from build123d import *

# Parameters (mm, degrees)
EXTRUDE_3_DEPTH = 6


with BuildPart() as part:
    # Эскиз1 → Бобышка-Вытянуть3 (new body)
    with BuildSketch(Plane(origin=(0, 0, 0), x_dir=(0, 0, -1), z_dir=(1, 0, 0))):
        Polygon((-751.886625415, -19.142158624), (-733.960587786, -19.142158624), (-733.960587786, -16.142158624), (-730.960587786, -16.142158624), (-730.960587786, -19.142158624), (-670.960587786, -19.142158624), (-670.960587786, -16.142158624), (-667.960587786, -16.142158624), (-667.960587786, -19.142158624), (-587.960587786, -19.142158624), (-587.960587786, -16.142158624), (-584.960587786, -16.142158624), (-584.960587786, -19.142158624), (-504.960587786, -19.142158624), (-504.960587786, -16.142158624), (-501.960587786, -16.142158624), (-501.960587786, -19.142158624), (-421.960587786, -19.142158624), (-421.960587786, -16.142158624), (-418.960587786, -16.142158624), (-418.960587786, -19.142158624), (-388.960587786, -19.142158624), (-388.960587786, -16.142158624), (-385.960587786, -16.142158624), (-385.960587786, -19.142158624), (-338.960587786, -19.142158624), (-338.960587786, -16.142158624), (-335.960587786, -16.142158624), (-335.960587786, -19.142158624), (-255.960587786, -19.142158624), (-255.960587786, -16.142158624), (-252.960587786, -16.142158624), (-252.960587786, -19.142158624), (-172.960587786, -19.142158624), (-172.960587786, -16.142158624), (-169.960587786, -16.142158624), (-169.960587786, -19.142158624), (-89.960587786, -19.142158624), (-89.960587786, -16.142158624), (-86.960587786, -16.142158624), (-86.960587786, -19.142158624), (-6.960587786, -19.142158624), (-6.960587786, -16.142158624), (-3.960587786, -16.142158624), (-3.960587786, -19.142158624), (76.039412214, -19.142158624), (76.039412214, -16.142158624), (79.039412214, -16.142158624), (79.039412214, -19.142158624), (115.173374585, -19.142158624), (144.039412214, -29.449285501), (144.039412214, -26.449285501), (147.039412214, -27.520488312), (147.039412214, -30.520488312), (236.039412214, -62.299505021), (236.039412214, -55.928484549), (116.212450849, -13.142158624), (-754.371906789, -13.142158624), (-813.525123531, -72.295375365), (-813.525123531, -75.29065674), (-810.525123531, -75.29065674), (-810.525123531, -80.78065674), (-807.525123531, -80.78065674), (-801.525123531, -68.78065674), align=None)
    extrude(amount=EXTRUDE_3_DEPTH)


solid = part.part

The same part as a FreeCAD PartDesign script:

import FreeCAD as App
import Part
import Sketcher

V = App.Vector
Q = App.Units.Quantity

doc = App.newDocument("Part")
body = doc.addObject("PartDesign::Body", "Body")

sketch1 = body.newObject("Sketcher::SketchObject", "Sketch")
sketch1.AttachmentSupport = (doc.getObject("YZ_Plane"), [""])
sketch1.MapMode = "FlatFace"
sketch1.addGeometry([
    Part.LineSegment(V(-19.142159, 751.886625, 0), V(-19.142159, 733.960588, 0)),
    Part.LineSegment(V(-19.142159, 733.960588, 0), V(-16.142159, 733.960588, 0)),
    Part.LineSegment(V(-16.142159, 733.960588, 0), V(-16.142159, 730.960588, 0)),
    Part.LineSegment(V(-16.142159, 730.960588, 0), V(-19.142159, 730.960588, 0)),
    Part.LineSegment(V(-19.142159, 730.960588, 0), V(-19.142159, 670.960588, 0)),
    Part.LineSegment(V(-19.142159, 670.960588, 0), V(-16.142159, 670.960588, 0)),
    Part.LineSegment(V(-16.142159, 670.960588, 0), V(-16.142159, 667.960588, 0)),
    Part.LineSegment(V(-16.142159, 667.960588, 0), V(-19.142159, 667.960588, 0)),
    Part.LineSegment(V(-19.142159, 667.960588, 0), V(-19.142159, 587.960588, 0)),
    Part.LineSegment(V(-19.142159, 587.960588, 0), V(-16.142159, 587.960588, 0)),
    Part.LineSegment(V(-16.142159, 587.960588, 0), V(-16.142159, 584.960588, 0)),
    Part.LineSegment(V(-16.142159, 584.960588, 0), V(-19.142159, 584.960588, 0)),
    Part.LineSegment(V(-19.142159, 584.960588, 0), V(-19.142159, 504.960588, 0)),
    Part.LineSegment(V(-19.142159, 504.960588, 0), V(-16.142159, 504.960588, 0)),
    Part.LineSegment(V(-16.142159, 504.960588, 0), V(-16.142159, 501.960588, 0)),
    Part.LineSegment(V(-16.142159, 501.960588, 0), V(-19.142159, 501.960588, 0)),
    Part.LineSegment(V(-19.142159, 501.960588, 0), V(-19.142159, 421.960588, 0)),
    Part.LineSegment(V(-19.142159, 421.960588, 0), V(-16.142159, 421.960588, 0)),
    Part.LineSegment(V(-16.142159, 421.960588, 0), V(-16.142159, 418.960588, 0)),
    Part.LineSegment(V(-16.142159, 418.960588, 0), V(-19.142159, 418.960588, 0)),
    Part.LineSegment(V(-19.142159, 418.960588, 0), V(-19.142159, 388.960588, 0)),
    Part.LineSegment(V(-19.142159, 388.960588, 0), V(-16.142159, 388.960588, 0)),
    Part.LineSegment(V(-16.142159, 388.960588, 0), V(-16.142159, 385.960588, 0)),
    Part.LineSegment(V(-16.142159, 385.960588, 0), V(-19.142159, 385.960588, 0)),
    Part.LineSegment(V(-19.142159, 385.960588, 0), V(-19.142159, 338.960588, 0)),
    Part.LineSegment(V(-19.142159, 338.960588, 0), V(-16.142159, 338.960588, 0)),
    Part.LineSegment(V(-16.142159, 338.960588, 0), V(-16.142159, 335.960588, 0)),
    Part.LineSegment(V(-16.142159, 335.960588, 0), V(-19.142159, 335.960588, 0)),
    Part.LineSegment(V(-19.142159, 335.960588, 0), V(-19.142159, 255.960588, 0)),
    Part.LineSegment(V(-19.142159, 255.960588, 0), V(-16.142159, 255.960588, 0)),
    Part.LineSegment(V(-16.142159, 255.960588, 0), V(-16.142159, 252.960588, 0)),
    Part.LineSegment(V(-16.142159, 252.960588, 0), V(-19.142159, 252.960588, 0)),
    Part.LineSegment(V(-19.142159, 252.960588, 0), V(-19.142159, 172.960588, 0)),
    Part.LineSegment(V(-19.142159, 172.960588, 0), V(-16.142159, 172.960588, 0)),
    Part.LineSegment(V(-16.142159, 172.960588, 0), V(-16.142159, 169.960588, 0)),
    Part.LineSegment(V(-16.142159, 169.960588, 0), V(-19.142159, 169.960588, 0)),
    Part.LineSegment(V(-19.142159, 169.960588, 0), V(-19.142159, 89.960588, 0)),
    Part.LineSegment(V(-19.142159, 89.960588, 0), V(-16.142159, 89.960588, 0)),
    Part.LineSegment(V(-16.142159, 89.960588, 0), V(-16.142159, 86.960588, 0)),
    Part.LineSegment(V(-16.142159, 86.960588, 0), V(-19.142159, 86.960588, 0)),
    Part.LineSegment(V(-19.142159, 86.960588, 0), V(-19.142159, 6.960588, 0)),
    Part.LineSegment(V(-19.142159, 6.960588, 0), V(-16.142159, 6.960588, 0)),
    Part.LineSegment(V(-16.142159, 6.960588, 0), V(-16.142159, 3.960588, 0)),
    Part.LineSegment(V(-16.142159, 3.960588, 0), V(-19.142159, 3.960588, 0)),
    Part.LineSegment(V(-19.142159, 3.960588, 0), V(-19.142159, -76.039412, 0)),
    Part.LineSegment(V(-19.142159, -76.039412, 0), V(-16.142159, -76.039412, 0)),
    Part.LineSegment(V(-16.142159, -76.039412, 0), V(-16.142159, -79.039412, 0)),
    Part.LineSegment(V(-16.142159, -79.039412, 0), V(-19.142159, -79.039412, 0)),
    Part.LineSegment(V(-19.142159, -79.039412, 0), V(-19.142159, -115.173375, 0)),
    Part.LineSegment(V(-19.142159, -115.173375, 0), V(-29.449286, -144.039412, 0)),
    Part.LineSegment(V(-29.449286, -144.039412, 0), V(-26.449286, -144.039412, 0)),
    Part.LineSegment(V(-26.449286, -144.039412, 0), V(-27.520488, -147.039412, 0)),
    Part.LineSegment(V(-27.520488, -147.039412, 0), V(-30.520488, -147.039412, 0)),
    Part.LineSegment(V(-30.520488, -147.039412, 0), V(-62.299505, -236.039412, 0)),
    Part.LineSegment(V(-62.299505, -236.039412, 0), V(-55.928485, -236.039412, 0)),
    Part.LineSegment(V(-55.928485, -236.039412, 0), V(-13.142159, -116.212451, 0)),
    Part.LineSegment(V(-13.142159, -116.212451, 0), V(-13.142159, 754.371907, 0)),
    Part.LineSegment(V(-13.142159, 754.371907, 0), V(-72.295375, 813.525124, 0)),
    Part.LineSegment(V(-72.295375, 813.525124, 0), V(-75.290657, 813.525124, 0)),
    Part.LineSegment(V(-75.290657, 813.525124, 0), V(-75.290657, 810.525124, 0)),
    Part.LineSegment(V(-75.290657, 810.525124, 0), V(-80.780657, 810.525124, 0)),
    Part.LineSegment(V(-80.780657, 810.525124, 0), V(-80.780657, 807.525124, 0)),
    Part.LineSegment(V(-80.780657, 807.525124, 0), V(-68.780657, 801.525124, 0)),
    Part.LineSegment(V(-68.780657, 801.525124, 0), V(-19.142159, 751.886625, 0)),
], False)
sketch1.addConstraint([
    Sketcher.Constraint("Coincident", 0, 2, 1, 1),
    Sketcher.Constraint("Coincident", 1, 2, 2, 1),
    Sketcher.Constraint("Coincident", 2, 2, 3, 1),
    Sketcher.Constraint("Coincident", 3, 2, 4, 1),
    Sketcher.Constraint("Coincident", 4, 2, 5, 1),
    Sketcher.Constraint("Coincident", 5, 2, 6, 1),
    Sketcher.Constraint("Coincident", 6, 2, 7, 1),
    Sketcher.Constraint("Coincident", 7, 2, 8, 1),
    Sketcher.Constraint("Coincident", 8, 2, 9, 1),
    Sketcher.Constraint("Coincident", 9, 2, 10, 1),
    Sketcher.Constraint("Coincident", 10, 2, 11, 1),
    Sketcher.Constraint("Coincident", 11, 2, 12, 1),
    Sketcher.Constraint("Coincident", 12, 2, 13, 1),
    Sketcher.Constraint("Coincident", 13, 2, 14, 1),
    Sketcher.Constraint("Coincident", 14, 2, 15, 1),
    Sketcher.Constraint("Coincident", 15, 2, 16, 1),
    Sketcher.Constraint("Coincident", 16, 2, 17, 1),
    Sketcher.Constraint("Coincident", 17, 2, 18, 1),
    Sketcher.Constraint("Coincident", 18, 2, 19, 1),
    Sketcher.Constraint("Coincident", 19, 2, 20, 1),
    Sketcher.Constraint("Coincident", 20, 2, 21, 1),
    Sketcher.Constraint("Coincident", 21, 2, 22, 1),
    Sketcher.Constraint("Coincident", 22, 2, 23, 1),
    Sketcher.Constraint("Coincident", 23, 2, 24, 1),
    Sketcher.Constraint("Coincident", 24, 2, 25, 1),
    Sketcher.Constraint("Coincident", 25, 2, 26, 1),
    Sketcher.Constraint("Coincident", 26, 2, 27, 1),
    Sketcher.Constraint("Coincident", 27, 2, 28, 1),
    Sketcher.Constraint("Coincident", 28, 2, 29, 1),
    Sketcher.Constraint("Coincident", 29, 2, 30, 1),
    Sketcher.Constraint("Coincident", 30, 2, 31, 1),
    Sketcher.Constraint("Coincident", 31, 2, 32, 1),
    Sketcher.Constraint("Coincident", 32, 2, 33, 1),
    Sketcher.Constraint("Coincident", 33, 2, 34, 1),
    Sketcher.Constraint("Coincident", 34, 2, 35, 1),
    Sketcher.Constraint("Coincident", 35, 2, 36, 1),
    Sketcher.Constraint("Coincident", 36, 2, 37, 1),
    Sketcher.Constraint("Coincident", 37, 2, 38, 1),
    Sketcher.Constraint("Coincident", 38, 2, 39, 1),
    Sketcher.Constraint("Coincident", 39, 2, 40, 1),
    Sketcher.Constraint("Coincident", 40, 2, 41, 1),
    Sketcher.Constraint("Coincident", 41, 2, 42, 1),
    Sketcher.Constraint("Coincident", 42, 2, 43, 1),
    Sketcher.Constraint("Coincident", 43, 2, 44, 1),
    Sketcher.Constraint("Coincident", 44, 2, 45, 1),
    Sketcher.Constraint("Coincident", 45, 2, 46, 1),
    Sketcher.Constraint("Coincident", 46, 2, 47, 1),
    Sketcher.Constraint("Coincident", 47, 2, 48, 1),
    Sketcher.Constraint("Coincident", 48, 2, 49, 1),
    Sketcher.Constraint("Coincident", 49, 2, 50, 1),
    Sketcher.Constraint("Coincident", 50, 2, 51, 1),
    Sketcher.Constraint("Coincident", 51, 2, 52, 1),
    Sketcher.Constraint("Coincident", 52, 2, 53, 1),
    Sketcher.Constraint("Coincident", 53, 2, 54, 1),
    Sketcher.Constraint("Coincident", 54, 2, 55, 1),
    Sketcher.Constraint("Coincident", 55, 2, 56, 1),
    Sketcher.Constraint("Coincident", 56, 2, 57, 1),
    Sketcher.Constraint("Coincident", 57, 2, 58, 1),
    Sketcher.Constraint("Coincident", 58, 2, 59, 1),
    Sketcher.Constraint("Coincident", 59, 2, 60, 1),
    Sketcher.Constraint("Coincident", 60, 2, 61, 1),
    Sketcher.Constraint("Coincident", 61, 2, 62, 1),
    Sketcher.Constraint("Coincident", 62, 2, 63, 1),
    Sketcher.Constraint("Coincident", 63, 2, 0, 1),
    Sketcher.Constraint("Vertical", 0),
    Sketcher.Constraint("Horizontal", 1),
    Sketcher.Constraint("Vertical", 2),
    Sketcher.Constraint("Horizontal", 3),
    Sketcher.Constraint("Vertical", 4),
    Sketcher.Constraint("Horizontal", 5),
    Sketcher.Constraint("Vertical", 6),
    Sketcher.Constraint("Horizontal", 7),
    Sketcher.Constraint("Vertical", 8),
    Sketcher.Constraint("Horizontal", 9),
    Sketcher.Constraint("Vertical", 10),
    Sketcher.Constraint("Horizontal", 11),
    Sketcher.Constraint("Vertical", 12),
    Sketcher.Constraint("Horizontal", 13),
    Sketcher.Constraint("Vertical", 14),
    Sketcher.Constraint("Horizontal", 15),
    Sketcher.Constraint("Vertical", 16),
    Sketcher.Constraint("Horizontal", 17),
    Sketcher.Constraint("Vertical", 18),
    Sketcher.Constraint("Horizontal", 19),
    Sketcher.Constraint("Vertical", 20),
    Sketcher.Constraint("Horizontal", 21),
    Sketcher.Constraint("Vertical", 22),
    Sketcher.Constraint("Horizontal", 23),
    Sketcher.Constraint("Vertical", 24),
    Sketcher.Constraint("Horizontal", 25),
    Sketcher.Constraint("Vertical", 26),
    Sketcher.Constraint("Horizontal", 27),
    Sketcher.Constraint("Vertical", 28),
    Sketcher.Constraint("Horizontal", 29),
    Sketcher.Constraint("Vertical", 30),
    Sketcher.Constraint("Horizontal", 31),
    Sketcher.Constraint("Vertical", 32),
    Sketcher.Constraint("Horizontal", 33),
    Sketcher.Constraint("Vertical", 34),
    Sketcher.Constraint("Horizontal", 35),
    Sketcher.Constraint("Vertical", 36),
    Sketcher.Constraint("Horizontal", 37),
    Sketcher.Constraint("Vertical", 38),
    Sketcher.Constraint("Horizontal", 39),
    Sketcher.Constraint("Vertical", 40),
    Sketcher.Constraint("Horizontal", 41),
    Sketcher.Constraint("Vertical", 42),
    Sketcher.Constraint("Horizontal", 43),
    Sketcher.Constraint("Vertical", 44),
    Sketcher.Constraint("Horizontal", 45),
    Sketcher.Constraint("Vertical", 46),
    Sketcher.Constraint("Horizontal", 47),
    Sketcher.Constraint("Vertical", 48),
    Sketcher.Constraint("Horizontal", 50),
    Sketcher.Constraint("Horizontal", 52),
    Sketcher.Constraint("Horizontal", 54),
    Sketcher.Constraint("Vertical", 56),
    Sketcher.Constraint("Horizontal", 58),
    Sketcher.Constraint("Vertical", 59),
    Sketcher.Constraint("Horizontal", 60),
    Sketcher.Constraint("Vertical", 61),
    Sketcher.Constraint("Parallel", 49, 51),
    Sketcher.Constraint("Parallel", 51, 53),
    Sketcher.Constraint("Parallel", 53, 55),
    Sketcher.Constraint("Parallel", 57, 63),
    Sketcher.Constraint("Vertical", 0, 2, 3, 2),
    Sketcher.Constraint("Vertical", 2, 2, 5, 2),
    Sketcher.Constraint("Vertical", 4, 2, 7, 2),
    Sketcher.Constraint("Vertical", 6, 2, 9, 2),
    Sketcher.Constraint("Vertical", 8, 2, 11, 2),
    Sketcher.Constraint("Vertical", 10, 2, 13, 2),
    Sketcher.Constraint("Vertical", 12, 2, 15, 2),
    Sketcher.Constraint("Vertical", 14, 2, 17, 2),
    Sketcher.Constraint("Vertical", 16, 2, 19, 2),
    Sketcher.Constraint("Vertical", 18, 2, 21, 2),
    Sketcher.Constraint("Vertical", 20, 2, 23, 2),
    Sketcher.Constraint("Vertical", 22, 2, 25, 2),
    Sketcher.Constraint("Vertical", 24, 2, 27, 2),
    Sketcher.Constraint("Vertical", 26, 2, 29, 2),
    Sketcher.Constraint("Vertical", 28, 2, 31, 2),
    Sketcher.Constraint("Vertical", 30, 2, 33, 2),
    Sketcher.Constraint("Vertical", 32, 2, 35, 2),
    Sketcher.Constraint("Vertical", 34, 2, 37, 2),
    Sketcher.Constraint("Vertical", 36, 2, 39, 2),
    Sketcher.Constraint("Vertical", 38, 2, 41, 2),
    Sketcher.Constraint("Vertical", 40, 2, 43, 2),
    Sketcher.Constraint("Vertical", 42, 2, 45, 2),
    Sketcher.Constraint("Vertical", 44, 2, 47, 2),
    Sketcher.Constraint("Equal", 47, 50),
    Sketcher.Constraint("Equal", 50, 52),
    Sketcher.Constraint("Equal", 52, 2),
    Sketcher.Constraint("Equal", 2, 6),
    Sketcher.Constraint("Equal", 6, 10),
    Sketcher.Constraint("Equal", 8, 12),
    Sketcher.Constraint("Equal", 10, 14),
    Sketcher.Constraint("Equal", 12, 16),
    Sketcher.Constraint("Equal", 14, 18),
    Sketcher.Constraint("Equal", 18, 22),
    Sketcher.Constraint("Equal", 22, 26),
    Sketcher.Constraint("Equal", 16, 28),
    Sketcher.Constraint("Equal", 26, 30),
    Sketcher.Constraint("Equal", 28, 32),
    Sketcher.Constraint("Equal", 30, 34),
    Sketcher.Constraint("Equal", 32, 36),
    Sketcher.Constraint("Equal", 34, 38),
    Sketcher.Constraint("Equal", 36, 40),
    Sketcher.Constraint("Equal", 38, 42),
    Sketcher.Constraint("Equal", 40, 44),
    Sketcher.Constraint("Equal", 42, 46),
    Sketcher.Constraint("Equal", 46, 59),
    Sketcher.Constraint("Equal", 59, 61),
    Sketcher.Constraint("DistanceX", 1, 1, 1, 2, 3.0),
    Sketcher.Constraint("DistanceY", 4, 2, 4, 1, 60.0),
    Sketcher.Constraint("DistanceY", 8, 2, 8, 1, 80.0),
    Sketcher.Constraint("DistanceY", 20, 2, 20, 1, 30.0),
    Sketcher.Constraint("DistanceY", 24, 2, 24, 1, 47.0),
    Sketcher.Constraint("Angle", 57, Q("135 deg")),
    Sketcher.Constraint("DistanceX", 60, 2, 60, 1, 5.49),
    Sketcher.Constraint("Angle", 49, Q("-109.65 deg")),
    Sketcher.Constraint("DistanceX", 54, 1, 54, 2, 6.37102),
    Sketcher.Constraint("DistanceX", 58, 2, 58, 1, 2.995281),
    Sketcher.Constraint("Distance", 49, 30.651019),
    Sketcher.Constraint("Distance", 51, 3.18551),
    Sketcher.Constraint("Distance", 53, 94.50347),
    Sketcher.Constraint("Distance", 55, 127.236671),
    Sketcher.Constraint("Distance", 57, 83.655281),
    Sketcher.Constraint("DistanceY", 0, 2, 0, 1, 17.926038),
    Sketcher.Constraint("DistanceY", 48, 2, 48, 1, 36.133962),
    Sketcher.Constraint("DistanceY", 56, 1, 56, 2, 870.584358),
    Sketcher.Constraint("DistanceX", 0, 2, -1, 1, 19.142159),
    Sketcher.Constraint("DistanceY", 55, 2, -1, 1, 116.212451),
    Sketcher.Constraint("Distance", 62, 13.416408),
])
pad1 = body.newObject("PartDesign::Pad", "Pad")
pad1.Profile = sketch1
pad1.Length = 6

doc.recompute()
